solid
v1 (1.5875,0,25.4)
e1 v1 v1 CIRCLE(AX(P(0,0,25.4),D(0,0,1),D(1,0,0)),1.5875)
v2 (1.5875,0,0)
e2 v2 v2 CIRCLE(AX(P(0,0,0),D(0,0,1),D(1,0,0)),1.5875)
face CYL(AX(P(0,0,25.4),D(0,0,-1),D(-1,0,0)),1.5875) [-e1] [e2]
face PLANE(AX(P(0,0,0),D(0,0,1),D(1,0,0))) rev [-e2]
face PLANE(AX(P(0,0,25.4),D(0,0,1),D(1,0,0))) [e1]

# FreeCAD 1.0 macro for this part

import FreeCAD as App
import Part
import Sketcher
from FreeCAD import Vector
Q = App.Units.Quantity

doc = App.newDocument("Part")
body = doc.addObject("PartDesign::Body", "Body")

# Sketch on XY plane
sketch1 = body.newObject("Sketcher::SketchObject", "Sketch")
sketch1.AttachmentSupport = (doc.getObject("XY_Plane"), [""])
sketch1.MapMode = "FlatFace"
sketch1.addGeometry(Part.Circle(Vector(0, 0, 0), Vector(0, 0, 1), 1.6), False)
sketch1.addConstraint([
    Sketcher.Constraint("Coincident", 0, 3, -1, 1),
    Sketcher.Constraint("Diameter", 0, Q("0.125 in")),
])
pad1 = body.newObject("PartDesign::Pad", "Pad")
pad1.Profile = sketch1
pad1.Length = Q("1 in")

doc.recompute()
